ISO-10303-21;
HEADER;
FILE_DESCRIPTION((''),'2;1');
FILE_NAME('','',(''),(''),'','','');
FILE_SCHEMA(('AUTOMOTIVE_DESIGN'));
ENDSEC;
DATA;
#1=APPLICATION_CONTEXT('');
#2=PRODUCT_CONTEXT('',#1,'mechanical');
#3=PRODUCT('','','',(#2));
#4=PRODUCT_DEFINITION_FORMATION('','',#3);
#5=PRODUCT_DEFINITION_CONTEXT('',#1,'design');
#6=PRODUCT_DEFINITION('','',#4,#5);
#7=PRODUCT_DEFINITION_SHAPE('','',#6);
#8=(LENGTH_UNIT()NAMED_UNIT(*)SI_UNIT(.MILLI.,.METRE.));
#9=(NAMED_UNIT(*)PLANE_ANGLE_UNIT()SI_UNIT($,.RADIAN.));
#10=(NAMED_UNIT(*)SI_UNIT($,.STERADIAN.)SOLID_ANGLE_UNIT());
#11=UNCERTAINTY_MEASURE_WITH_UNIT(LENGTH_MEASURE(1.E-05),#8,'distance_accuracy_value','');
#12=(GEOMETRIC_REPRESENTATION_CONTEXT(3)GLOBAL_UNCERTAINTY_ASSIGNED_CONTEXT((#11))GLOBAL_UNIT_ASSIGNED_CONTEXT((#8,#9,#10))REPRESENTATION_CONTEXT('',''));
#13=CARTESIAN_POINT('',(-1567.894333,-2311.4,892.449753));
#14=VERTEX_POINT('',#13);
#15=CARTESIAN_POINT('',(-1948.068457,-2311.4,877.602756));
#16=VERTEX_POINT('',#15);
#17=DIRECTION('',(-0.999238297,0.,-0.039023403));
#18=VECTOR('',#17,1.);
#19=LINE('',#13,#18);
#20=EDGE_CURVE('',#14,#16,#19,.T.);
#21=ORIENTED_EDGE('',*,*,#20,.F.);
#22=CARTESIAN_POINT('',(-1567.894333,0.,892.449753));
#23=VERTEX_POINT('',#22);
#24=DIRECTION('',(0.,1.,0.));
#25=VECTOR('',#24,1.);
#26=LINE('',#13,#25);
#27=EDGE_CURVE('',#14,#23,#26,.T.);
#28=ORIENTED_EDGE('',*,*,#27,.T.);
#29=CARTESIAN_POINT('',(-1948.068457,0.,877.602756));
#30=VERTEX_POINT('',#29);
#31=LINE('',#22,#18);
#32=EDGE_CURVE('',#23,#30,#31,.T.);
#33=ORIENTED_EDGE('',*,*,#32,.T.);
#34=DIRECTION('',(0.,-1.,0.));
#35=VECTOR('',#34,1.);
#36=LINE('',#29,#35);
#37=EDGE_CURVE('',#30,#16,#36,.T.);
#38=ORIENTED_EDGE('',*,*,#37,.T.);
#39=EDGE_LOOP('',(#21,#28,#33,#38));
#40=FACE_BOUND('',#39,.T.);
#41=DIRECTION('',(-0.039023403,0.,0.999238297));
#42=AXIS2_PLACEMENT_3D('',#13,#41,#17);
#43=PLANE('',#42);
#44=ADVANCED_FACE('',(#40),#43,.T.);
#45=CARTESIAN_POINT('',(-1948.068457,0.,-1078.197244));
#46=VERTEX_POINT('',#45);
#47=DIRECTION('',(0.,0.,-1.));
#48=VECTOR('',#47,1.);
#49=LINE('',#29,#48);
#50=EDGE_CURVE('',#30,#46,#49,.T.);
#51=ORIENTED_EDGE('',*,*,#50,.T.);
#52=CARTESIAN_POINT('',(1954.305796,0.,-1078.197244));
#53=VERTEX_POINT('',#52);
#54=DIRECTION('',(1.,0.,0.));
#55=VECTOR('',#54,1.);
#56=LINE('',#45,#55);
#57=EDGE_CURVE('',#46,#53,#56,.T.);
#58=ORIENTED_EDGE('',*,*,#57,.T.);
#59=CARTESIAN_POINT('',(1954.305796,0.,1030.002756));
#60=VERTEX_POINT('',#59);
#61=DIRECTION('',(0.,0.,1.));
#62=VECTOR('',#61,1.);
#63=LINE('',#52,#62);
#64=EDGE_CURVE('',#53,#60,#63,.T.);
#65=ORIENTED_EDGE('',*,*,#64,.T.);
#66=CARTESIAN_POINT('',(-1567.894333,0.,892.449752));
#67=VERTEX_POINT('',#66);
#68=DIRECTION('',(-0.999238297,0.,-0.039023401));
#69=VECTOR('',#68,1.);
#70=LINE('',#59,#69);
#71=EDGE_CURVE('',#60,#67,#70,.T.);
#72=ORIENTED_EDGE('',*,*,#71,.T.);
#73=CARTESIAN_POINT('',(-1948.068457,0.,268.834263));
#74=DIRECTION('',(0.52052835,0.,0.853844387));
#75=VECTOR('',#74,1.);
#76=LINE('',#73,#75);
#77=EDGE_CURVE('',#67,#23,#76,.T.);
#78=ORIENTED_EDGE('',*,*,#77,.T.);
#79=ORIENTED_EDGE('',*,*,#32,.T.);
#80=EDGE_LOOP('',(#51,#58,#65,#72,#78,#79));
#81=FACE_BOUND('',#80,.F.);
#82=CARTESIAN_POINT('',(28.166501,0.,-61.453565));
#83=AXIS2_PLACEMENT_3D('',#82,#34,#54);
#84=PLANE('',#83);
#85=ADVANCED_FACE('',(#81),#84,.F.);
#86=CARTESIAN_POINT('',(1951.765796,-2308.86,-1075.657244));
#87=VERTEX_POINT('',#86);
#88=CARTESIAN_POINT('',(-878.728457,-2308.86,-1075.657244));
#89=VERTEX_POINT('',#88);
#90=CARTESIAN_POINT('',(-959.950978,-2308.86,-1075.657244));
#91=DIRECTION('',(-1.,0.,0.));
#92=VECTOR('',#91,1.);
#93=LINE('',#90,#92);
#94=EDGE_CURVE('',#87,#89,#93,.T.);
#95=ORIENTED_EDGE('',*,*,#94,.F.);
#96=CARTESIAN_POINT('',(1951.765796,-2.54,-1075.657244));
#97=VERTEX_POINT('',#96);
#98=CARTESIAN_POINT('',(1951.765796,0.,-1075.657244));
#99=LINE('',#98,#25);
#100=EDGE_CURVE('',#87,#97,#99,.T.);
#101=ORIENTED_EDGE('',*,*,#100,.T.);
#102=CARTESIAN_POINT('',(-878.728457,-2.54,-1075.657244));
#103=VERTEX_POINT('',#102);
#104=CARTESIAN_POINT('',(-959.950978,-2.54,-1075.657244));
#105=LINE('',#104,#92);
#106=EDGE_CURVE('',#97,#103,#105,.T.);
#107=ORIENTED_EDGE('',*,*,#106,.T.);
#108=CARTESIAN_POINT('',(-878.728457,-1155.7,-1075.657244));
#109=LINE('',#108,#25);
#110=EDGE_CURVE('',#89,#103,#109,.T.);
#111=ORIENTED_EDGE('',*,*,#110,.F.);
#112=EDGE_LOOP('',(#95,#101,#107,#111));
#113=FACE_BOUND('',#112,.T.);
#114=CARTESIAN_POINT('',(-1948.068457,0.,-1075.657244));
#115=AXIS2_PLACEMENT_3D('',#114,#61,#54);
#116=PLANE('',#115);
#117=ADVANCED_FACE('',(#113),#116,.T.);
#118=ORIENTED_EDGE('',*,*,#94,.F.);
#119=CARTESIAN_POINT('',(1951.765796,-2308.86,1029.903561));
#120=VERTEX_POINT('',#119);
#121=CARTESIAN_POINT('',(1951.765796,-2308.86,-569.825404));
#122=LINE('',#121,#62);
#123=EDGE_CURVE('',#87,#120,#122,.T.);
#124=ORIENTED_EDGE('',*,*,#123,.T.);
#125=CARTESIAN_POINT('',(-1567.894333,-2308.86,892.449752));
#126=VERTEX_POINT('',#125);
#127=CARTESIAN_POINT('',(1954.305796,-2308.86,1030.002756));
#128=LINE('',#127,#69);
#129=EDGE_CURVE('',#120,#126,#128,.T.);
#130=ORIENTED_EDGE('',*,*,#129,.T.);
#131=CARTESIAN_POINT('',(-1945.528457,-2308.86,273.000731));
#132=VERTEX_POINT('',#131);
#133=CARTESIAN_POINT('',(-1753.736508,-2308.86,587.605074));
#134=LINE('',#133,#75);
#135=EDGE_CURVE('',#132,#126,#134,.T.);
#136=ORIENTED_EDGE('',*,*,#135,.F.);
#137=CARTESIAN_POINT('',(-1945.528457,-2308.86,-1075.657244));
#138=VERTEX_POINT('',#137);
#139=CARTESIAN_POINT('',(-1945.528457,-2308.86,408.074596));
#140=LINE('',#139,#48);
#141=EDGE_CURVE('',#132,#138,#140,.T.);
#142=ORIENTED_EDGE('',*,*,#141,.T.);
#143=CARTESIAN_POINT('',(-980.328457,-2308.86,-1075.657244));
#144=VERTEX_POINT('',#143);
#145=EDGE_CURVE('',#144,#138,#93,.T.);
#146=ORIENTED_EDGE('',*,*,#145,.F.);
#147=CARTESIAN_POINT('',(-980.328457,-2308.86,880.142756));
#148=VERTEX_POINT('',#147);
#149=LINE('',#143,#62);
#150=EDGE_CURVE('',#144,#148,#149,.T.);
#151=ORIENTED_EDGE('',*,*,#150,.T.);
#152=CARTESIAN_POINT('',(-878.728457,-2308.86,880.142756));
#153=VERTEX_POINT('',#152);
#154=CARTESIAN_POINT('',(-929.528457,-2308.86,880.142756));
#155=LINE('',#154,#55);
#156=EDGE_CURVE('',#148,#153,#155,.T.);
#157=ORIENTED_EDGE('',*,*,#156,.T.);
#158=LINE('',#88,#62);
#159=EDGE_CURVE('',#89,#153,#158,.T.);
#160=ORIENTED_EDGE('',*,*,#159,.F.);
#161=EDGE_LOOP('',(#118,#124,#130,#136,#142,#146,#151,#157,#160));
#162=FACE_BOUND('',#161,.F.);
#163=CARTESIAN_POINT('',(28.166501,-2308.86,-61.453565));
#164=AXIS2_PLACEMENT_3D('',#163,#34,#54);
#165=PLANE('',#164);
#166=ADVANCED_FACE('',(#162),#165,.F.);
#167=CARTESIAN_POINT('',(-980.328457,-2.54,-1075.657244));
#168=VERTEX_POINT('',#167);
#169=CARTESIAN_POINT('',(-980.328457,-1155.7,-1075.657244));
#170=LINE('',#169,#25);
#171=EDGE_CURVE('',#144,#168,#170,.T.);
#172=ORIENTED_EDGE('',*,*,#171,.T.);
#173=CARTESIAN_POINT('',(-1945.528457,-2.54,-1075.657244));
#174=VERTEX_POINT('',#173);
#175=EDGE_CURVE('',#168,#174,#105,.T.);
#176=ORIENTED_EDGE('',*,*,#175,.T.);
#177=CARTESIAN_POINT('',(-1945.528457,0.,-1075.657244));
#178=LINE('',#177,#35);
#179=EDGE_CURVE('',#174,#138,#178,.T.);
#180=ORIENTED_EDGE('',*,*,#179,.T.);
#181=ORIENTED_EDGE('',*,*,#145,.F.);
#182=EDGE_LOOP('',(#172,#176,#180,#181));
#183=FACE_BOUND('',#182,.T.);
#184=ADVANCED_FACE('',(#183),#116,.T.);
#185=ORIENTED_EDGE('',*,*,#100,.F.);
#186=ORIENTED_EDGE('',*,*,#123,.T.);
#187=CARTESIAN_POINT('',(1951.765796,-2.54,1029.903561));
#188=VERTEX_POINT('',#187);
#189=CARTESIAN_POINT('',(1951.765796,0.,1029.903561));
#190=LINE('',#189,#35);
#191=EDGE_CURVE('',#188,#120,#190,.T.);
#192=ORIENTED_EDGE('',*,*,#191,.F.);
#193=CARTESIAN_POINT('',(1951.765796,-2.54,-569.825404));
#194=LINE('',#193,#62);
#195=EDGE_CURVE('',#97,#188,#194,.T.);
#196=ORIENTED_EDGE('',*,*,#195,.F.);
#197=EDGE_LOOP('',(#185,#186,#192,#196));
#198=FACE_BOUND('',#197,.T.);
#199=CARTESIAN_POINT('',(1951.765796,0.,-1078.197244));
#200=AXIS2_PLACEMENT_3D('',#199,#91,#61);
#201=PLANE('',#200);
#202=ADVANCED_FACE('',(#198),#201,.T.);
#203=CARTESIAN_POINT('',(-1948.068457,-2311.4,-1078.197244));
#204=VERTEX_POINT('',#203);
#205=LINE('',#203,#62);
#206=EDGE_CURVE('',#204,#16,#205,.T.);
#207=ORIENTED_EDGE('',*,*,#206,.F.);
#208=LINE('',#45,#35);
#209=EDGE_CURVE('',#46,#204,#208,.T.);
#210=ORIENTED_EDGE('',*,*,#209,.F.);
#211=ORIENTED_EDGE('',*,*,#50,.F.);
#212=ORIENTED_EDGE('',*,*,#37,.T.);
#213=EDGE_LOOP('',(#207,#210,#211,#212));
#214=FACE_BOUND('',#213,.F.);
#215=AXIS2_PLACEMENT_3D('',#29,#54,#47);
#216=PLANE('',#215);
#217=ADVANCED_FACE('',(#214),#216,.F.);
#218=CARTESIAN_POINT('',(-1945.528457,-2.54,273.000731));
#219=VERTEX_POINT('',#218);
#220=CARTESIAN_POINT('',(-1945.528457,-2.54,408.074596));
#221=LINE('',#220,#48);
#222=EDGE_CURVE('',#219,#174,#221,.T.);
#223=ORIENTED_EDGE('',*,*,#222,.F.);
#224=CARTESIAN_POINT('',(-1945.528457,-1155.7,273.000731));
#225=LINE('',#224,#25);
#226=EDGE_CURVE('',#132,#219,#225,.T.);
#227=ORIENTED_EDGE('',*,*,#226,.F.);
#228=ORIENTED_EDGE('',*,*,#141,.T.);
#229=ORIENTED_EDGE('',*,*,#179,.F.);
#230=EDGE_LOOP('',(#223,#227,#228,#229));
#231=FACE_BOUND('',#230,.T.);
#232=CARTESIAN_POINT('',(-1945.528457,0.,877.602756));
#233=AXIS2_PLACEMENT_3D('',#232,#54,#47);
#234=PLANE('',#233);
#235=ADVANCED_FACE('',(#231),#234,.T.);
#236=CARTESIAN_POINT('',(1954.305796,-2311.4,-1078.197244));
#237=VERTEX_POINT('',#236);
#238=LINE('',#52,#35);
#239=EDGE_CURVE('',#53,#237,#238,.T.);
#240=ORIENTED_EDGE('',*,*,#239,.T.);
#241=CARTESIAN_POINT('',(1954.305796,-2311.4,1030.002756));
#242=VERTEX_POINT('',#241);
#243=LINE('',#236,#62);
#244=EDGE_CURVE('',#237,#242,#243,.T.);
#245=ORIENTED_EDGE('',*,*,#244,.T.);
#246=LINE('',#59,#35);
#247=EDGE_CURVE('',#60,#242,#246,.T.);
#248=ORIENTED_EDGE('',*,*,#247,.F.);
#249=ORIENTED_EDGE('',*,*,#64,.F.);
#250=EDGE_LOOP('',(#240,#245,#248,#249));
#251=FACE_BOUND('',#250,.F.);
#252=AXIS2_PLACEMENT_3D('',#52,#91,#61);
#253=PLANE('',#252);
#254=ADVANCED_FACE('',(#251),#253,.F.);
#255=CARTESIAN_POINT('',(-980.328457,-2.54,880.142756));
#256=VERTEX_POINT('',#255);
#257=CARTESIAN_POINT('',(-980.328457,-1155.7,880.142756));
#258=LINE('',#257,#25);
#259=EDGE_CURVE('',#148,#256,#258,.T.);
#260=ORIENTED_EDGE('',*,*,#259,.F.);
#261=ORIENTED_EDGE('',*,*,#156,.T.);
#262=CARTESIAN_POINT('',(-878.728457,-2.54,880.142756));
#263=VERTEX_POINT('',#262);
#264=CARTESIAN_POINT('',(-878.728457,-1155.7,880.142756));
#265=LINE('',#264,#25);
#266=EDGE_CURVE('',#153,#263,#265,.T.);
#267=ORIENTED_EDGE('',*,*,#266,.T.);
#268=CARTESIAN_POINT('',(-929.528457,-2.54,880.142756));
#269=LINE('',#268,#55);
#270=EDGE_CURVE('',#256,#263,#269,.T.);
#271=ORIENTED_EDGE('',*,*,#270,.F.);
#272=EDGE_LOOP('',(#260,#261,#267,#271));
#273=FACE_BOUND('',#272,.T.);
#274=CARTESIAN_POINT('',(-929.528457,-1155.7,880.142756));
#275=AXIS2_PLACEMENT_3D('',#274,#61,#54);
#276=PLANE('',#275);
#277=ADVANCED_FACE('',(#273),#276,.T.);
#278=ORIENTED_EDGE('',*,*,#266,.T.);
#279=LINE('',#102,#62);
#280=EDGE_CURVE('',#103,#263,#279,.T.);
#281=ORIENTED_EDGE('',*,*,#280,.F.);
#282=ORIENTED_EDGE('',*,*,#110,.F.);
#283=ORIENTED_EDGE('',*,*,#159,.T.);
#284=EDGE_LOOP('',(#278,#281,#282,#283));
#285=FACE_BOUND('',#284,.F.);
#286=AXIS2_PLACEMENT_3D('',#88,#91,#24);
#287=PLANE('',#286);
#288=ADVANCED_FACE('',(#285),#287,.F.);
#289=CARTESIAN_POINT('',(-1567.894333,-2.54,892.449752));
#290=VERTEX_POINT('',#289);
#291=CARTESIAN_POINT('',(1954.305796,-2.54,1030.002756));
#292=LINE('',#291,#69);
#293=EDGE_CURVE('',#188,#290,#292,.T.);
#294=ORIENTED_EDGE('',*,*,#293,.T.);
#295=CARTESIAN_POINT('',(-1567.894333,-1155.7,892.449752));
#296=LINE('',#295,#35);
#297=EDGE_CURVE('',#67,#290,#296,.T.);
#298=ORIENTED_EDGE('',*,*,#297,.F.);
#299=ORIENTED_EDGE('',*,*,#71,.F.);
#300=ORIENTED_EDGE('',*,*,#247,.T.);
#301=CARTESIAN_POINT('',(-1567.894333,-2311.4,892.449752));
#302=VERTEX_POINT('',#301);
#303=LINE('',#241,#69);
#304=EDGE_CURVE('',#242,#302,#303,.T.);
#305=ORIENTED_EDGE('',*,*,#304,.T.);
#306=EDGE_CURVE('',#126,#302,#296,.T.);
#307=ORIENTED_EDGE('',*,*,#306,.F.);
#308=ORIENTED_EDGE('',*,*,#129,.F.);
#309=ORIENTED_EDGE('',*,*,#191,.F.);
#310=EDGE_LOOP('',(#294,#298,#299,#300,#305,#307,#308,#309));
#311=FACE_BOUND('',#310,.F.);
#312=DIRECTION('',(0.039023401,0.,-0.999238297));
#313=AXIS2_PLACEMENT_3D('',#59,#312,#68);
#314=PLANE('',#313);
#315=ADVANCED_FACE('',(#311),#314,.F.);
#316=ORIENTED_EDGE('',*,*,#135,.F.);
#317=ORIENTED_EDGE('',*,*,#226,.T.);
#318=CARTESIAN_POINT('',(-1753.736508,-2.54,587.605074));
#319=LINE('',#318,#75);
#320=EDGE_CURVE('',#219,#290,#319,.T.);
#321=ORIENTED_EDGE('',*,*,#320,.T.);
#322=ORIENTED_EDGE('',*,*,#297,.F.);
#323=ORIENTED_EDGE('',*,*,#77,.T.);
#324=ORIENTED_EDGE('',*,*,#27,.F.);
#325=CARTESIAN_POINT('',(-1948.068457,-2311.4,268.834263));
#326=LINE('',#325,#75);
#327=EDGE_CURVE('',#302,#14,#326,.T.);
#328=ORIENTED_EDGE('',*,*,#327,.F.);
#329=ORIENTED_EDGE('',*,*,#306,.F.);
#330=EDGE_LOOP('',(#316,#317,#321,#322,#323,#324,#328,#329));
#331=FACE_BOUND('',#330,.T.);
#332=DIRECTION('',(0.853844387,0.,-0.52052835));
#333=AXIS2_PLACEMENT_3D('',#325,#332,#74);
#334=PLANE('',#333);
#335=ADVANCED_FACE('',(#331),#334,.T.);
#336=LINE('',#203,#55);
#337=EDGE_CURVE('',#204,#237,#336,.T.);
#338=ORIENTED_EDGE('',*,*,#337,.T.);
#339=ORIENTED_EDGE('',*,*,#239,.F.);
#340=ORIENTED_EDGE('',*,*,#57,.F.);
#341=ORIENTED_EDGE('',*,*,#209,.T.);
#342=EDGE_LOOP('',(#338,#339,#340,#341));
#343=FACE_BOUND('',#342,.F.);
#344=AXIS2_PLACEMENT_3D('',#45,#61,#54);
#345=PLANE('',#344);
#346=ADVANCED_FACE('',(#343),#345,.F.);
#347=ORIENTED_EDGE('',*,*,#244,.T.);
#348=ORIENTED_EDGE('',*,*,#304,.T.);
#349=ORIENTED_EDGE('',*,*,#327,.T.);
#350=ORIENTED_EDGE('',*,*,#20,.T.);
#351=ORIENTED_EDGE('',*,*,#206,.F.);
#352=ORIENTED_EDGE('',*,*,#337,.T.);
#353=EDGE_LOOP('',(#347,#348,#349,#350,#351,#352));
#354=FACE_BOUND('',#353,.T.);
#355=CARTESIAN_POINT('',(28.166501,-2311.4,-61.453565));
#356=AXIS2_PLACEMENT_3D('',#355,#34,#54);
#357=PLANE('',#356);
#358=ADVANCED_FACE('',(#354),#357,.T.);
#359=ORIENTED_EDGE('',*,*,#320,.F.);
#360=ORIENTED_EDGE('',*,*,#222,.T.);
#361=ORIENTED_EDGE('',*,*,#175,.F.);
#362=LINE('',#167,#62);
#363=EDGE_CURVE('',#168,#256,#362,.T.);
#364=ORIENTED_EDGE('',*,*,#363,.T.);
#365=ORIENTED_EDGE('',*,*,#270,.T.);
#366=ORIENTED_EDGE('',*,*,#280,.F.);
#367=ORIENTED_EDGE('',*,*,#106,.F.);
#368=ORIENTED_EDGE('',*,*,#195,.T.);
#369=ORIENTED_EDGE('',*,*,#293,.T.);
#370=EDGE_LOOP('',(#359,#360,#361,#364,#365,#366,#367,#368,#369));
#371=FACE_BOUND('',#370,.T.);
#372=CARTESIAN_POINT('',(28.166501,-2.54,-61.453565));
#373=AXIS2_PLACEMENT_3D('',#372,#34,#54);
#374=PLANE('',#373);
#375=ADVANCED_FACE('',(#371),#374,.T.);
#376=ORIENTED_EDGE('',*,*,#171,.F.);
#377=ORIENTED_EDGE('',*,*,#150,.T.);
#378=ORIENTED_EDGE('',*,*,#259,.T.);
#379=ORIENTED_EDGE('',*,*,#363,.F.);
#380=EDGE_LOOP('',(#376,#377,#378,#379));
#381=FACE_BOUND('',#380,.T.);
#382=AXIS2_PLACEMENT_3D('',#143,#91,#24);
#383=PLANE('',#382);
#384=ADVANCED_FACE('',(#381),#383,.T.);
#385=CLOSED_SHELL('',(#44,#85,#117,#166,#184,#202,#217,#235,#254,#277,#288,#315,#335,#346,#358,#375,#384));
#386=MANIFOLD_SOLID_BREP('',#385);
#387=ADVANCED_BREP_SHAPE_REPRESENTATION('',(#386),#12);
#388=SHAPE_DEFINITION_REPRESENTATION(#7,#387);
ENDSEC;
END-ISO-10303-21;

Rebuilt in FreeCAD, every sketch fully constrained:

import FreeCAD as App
import Part
import Sketcher
Q = App.Units.Quantity


def faces_at(feature, points):
    """Names of the faces that lie closest to the given points."""
    faces = feature.Shape.Faces
    near = lambda p: min(range(len(faces)), key=lambda i: faces[i].distToShape(Part.Vertex(*p))[0])
    return sorted({f"Face{near(p) + 1}" for p in points})

doc = App.newDocument("Part")
body = doc.addObject("PartDesign::Body", "Body")

# Sketch on XZ plane
sketch1 = body.newObject("Sketcher::SketchObject", "Sketch")
sketch1.AttachmentSupport = (doc.getObject("XZ_Plane"), [""])
sketch1.MapMode = "FlatFace"
sketch1.addGeometry(Part.LineSegment(App.Vector(1954, 1030, 0), App.Vector(-1948, 878, 0)), False)
sketch1.addGeometry(Part.LineSegment(App.Vector(-1948, 878, 0), App.Vector(-1948, -1078, 0)), False)
sketch1.addGeometry(Part.LineSegment(App.Vector(-1948, -1078, 0), App.Vector(1954, -1078, 0)), False)
sketch1.addGeometry(Part.LineSegment(App.Vector(1954, -1078, 0), App.Vector(1954, 1030, 0)), False)
sketch1.addConstraint(Sketcher.Constraint("Coincident", 0, 2, 1, 1))
sketch1.addConstraint(Sketcher.Constraint("Coincident", 1, 2, 2, 1))
sketch1.addConstraint(Sketcher.Constraint("Coincident", 2, 2, 3, 1))
sketch1.addConstraint(Sketcher.Constraint("Coincident", 3, 2, 0, 1))
sketch1.addConstraint(Sketcher.Constraint("Vertical", 1))
sketch1.addConstraint(Sketcher.Constraint("Horizontal", 2))
sketch1.addConstraint(Sketcher.Constraint("Vertical", 3))
sketch1.addConstraint(Sketcher.Constraint("DistanceY", 1, 2, 1, 1, Q("77 in")))
sketch1.addConstraint(Sketcher.Constraint("DistanceY", 3, 1, 3, 2, Q("83 in")))
sketch1.addConstraint(Sketcher.Constraint("Distance", 0, Q("3905.348969 mm")))
sketch1.addConstraint(Sketcher.Constraint("DistanceX", 0, 2, -1, 1, Q("1948.068457 mm")))
sketch1.addConstraint(Sketcher.Constraint("DistanceY", -1, 1, 0, 2, Q("877.602756 mm")))
pad1 = body.newObject("PartDesign::Pad", "Pad")
pad1.Profile = sketch1
pad1.Length = Q("91 in")
doc.recompute()

thickness = body.newObject("PartDesign::Thickness", "Thickness")
thickness.Base = (pad1, faces_at(pad1, [(3.119, -1155.7, 953.803)]))
thickness.Value = Q("0.1 in")
thickness.Reversed = True
thickness.Join = "Arc"

# Sketch on XY plane
sketch2 = body.newObject("Sketcher::SketchObject", "Sketch001")
sketch2.AttachmentSupport = (doc.getObject("XY_Plane"), [""])
sketch2.MapMode = "FlatFace"
sketch2.AttachmentOffset = App.Placement(App.Vector(0, 0, -1075.657244), App.Rotation())
sketch2.addGeometry(Part.LineSegment(App.Vector(-980, -3, 0), App.Vector(-980, -2309, 0)), False)
sketch2.addGeometry(Part.LineSegment(App.Vector(-980, -2309, 0), App.Vector(-879, -2309, 0)), False)
sketch2.addGeometry(Part.LineSegment(App.Vector(-879, -2309, 0), App.Vector(-879, -3, 0)), False)
sketch2.addGeometry(Part.LineSegment(App.Vector(-879, -3, 0), App.Vector(-980, -3, 0)), False)
sketch2.addConstraint(Sketcher.Constraint("Coincident", 0, 2, 1, 1))
sketch2.addConstraint(Sketcher.Constraint("Coincident", 1, 2, 2, 1))
sketch2.addConstraint(Sketcher.Constraint("Coincident", 2, 2, 3, 1))
sketch2.addConstraint(Sketcher.Constraint("Coincident", 3, 2, 0, 1))
sketch2.addConstraint(Sketcher.Constraint("Vertical", 0))
sketch2.addConstraint(Sketcher.Constraint("Horizontal", 1))
sketch2.addConstraint(Sketcher.Constraint("Vertical", 2))
sketch2.addConstraint(Sketcher.Constraint("Horizontal", 3))
sketch2.addConstraint(Sketcher.Constraint("DistanceX", 1, 1, 1, 2, Q("4 in")))
sketch2.addConstraint(Sketcher.Constraint("DistanceY", 0, 2, 0, 1, Q("90.8 in")))
sketch2.addConstraint(Sketcher.Constraint("DistanceY", 0, 2, -1, 1, Q("90.9 in")))
sketch2.addConstraint(Sketcher.Constraint("DistanceX", 0, 2, -1, 1, Q("980.328457 mm")))
pad2 = body.newObject("PartDesign::Pad", "Pad001")
pad2.Profile = sketch2
pad2.Length = Q("77 in")

# Sketch on XZ plane
sketch3 = body.newObject("Sketcher::SketchObject", "Sketch002")
sketch3.AttachmentSupport = (doc.getObject("XZ_Plane"), [""])
sketch3.MapMode = "FlatFace"
sketch3.AttachmentOffset = App.Placement(App.Vector(0, 0, 91 * 25.4), App.Rotation())
sketch3.addGeometry(Part.LineSegment(App.Vector(-1948, 878, 0), App.Vector(-1948, 269, 0)), False)
sketch3.addGeometry(Part.LineSegment(App.Vector(-1948, 269, 0), App.Vector(-1568, 892, 0)), False)
sketch3.addGeometry(Part.LineSegment(App.Vector(-1568, 892, 0), App.Vector(-1948, 878, 0)), False)
sketch3.addConstraint(Sketcher.Constraint("Coincident", 0, 2, 1, 1))
sketch3.addConstraint(Sketcher.Constraint("Coincident", 1, 2, 2, 1))
sketch3.addConstraint(Sketcher.Constraint("Coincident", 2, 2, 0, 1))
sketch3.addConstraint(Sketcher.Constraint("Vertical", 0))
sketch3.addConstraint(Sketcher.Constraint("DistanceY", 0, 2, 0, 1, Q("608.768493 mm")))
sketch3.addConstraint(Sketcher.Constraint("DistanceY", 0, 2, 1, 2, Q("623.61549 mm")))
sketch3.addConstraint(Sketcher.Constraint("Distance", 1, Q("730.361995 mm")))
sketch3.addConstraint(Sketcher.Constraint("DistanceX", 0, 2, -1, 1, Q("1948.068457 mm")))
sketch3.addConstraint(Sketcher.Constraint("DistanceY", -1, 1, 0, 2, Q("268.834263 mm")))
pad3 = body.newObject("PartDesign::Pad", "Pad002")
pad3.Profile = sketch3
pad3.Length = Q("91 in")
pad3.Reversed = True

doc.recompute()
